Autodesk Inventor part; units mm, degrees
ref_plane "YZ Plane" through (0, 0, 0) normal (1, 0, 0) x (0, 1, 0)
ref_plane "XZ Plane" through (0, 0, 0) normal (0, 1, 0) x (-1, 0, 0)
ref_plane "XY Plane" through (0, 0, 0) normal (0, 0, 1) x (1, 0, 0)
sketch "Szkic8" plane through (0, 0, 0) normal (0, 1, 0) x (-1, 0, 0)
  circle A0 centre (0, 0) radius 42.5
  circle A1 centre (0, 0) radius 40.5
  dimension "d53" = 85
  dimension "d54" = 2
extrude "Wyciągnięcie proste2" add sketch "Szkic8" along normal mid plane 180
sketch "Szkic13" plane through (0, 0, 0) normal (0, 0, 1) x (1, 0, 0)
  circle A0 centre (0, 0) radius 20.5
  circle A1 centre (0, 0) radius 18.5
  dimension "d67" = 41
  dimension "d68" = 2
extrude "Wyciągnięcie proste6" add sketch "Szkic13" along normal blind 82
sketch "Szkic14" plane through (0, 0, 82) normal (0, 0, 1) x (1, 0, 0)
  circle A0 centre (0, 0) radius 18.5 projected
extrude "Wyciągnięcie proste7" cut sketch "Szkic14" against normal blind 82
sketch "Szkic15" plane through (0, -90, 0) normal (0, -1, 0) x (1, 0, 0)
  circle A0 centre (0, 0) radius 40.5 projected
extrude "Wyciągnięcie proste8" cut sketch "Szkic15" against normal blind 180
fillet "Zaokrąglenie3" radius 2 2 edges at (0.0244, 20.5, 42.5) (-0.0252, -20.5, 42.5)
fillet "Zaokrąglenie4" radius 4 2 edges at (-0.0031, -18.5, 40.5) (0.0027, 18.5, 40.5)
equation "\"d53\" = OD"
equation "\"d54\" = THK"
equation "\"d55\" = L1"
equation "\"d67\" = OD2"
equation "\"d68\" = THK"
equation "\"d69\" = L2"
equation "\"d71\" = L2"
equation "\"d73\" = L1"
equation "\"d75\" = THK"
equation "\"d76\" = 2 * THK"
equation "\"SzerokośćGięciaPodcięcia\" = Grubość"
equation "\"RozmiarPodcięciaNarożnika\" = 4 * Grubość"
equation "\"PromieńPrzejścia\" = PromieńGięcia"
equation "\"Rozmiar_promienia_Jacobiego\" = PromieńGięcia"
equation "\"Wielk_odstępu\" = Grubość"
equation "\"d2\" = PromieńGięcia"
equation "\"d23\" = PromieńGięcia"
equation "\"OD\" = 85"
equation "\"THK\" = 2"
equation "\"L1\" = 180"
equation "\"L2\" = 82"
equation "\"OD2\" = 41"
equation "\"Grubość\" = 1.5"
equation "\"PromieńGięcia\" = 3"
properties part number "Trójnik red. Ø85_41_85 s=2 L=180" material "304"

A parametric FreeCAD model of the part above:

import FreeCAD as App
import Part
import Sketcher

V = App.Vector
Q = App.Units.Quantity


def edges_at(feature, points):
    """Names of the edges that pass closest to the given points."""
    edges = feature.Shape.Edges
    near = lambda p: min(range(len(edges)), key=lambda i: edges[i].distToShape(Part.Vertex(*p))[0])
    return sorted({f"Edge{near(p) + 1}" for p in points})

doc = App.newDocument("Part")
body = doc.addObject("PartDesign::Body", "Body")

sketch1 = doc.addObject("Sketcher::SketchObject", "Sketch")
body.addObject(sketch1)
sketch1.AttachmentSupport = (doc.XZ_Plane, [""])
sketch1.MapMode = "FlatFace"
sketch1.addGeometry([
    Part.Circle(V(0, 0, 0), V(0, 0, 1), 42),
    Part.Circle(V(0, 0, 0), V(0, 0, 1), 40),
], False)
sketch1.addConstraint([
    Sketcher.Constraint("Coincident", 0, 3, -1, 1),
    Sketcher.Constraint("Coincident", 1, 3, -1, 1),
    Sketcher.Constraint("Diameter", 0, Q("85 mm")),
    Sketcher.Constraint("Diameter", 1, Q("81 mm")),
])
pad1 = doc.addObject("PartDesign::Pad", "Pad")
body.addObject(pad1)
pad1.Profile = sketch1
pad1.Length = 180
pad1.Midplane = True

sketch2 = doc.addObject("Sketcher::SketchObject", "Sketch001")
body.addObject(sketch2)
sketch2.AttachmentSupport = (doc.XY_Plane, [""])
sketch2.MapMode = "FlatFace"
sketch2.addGeometry([
    Part.Circle(V(0, 0, 0), V(0, 0, 1), 20),
    Part.Circle(V(0, 0, 0), V(0, 0, 1), 18),
], False)
sketch2.addConstraint([
    Sketcher.Constraint("Coincident", 0, 3, -1, 1),
    Sketcher.Constraint("Coincident", 1, 3, -1, 1),
    Sketcher.Constraint("Diameter", 0, Q("41 mm")),
    Sketcher.Constraint("Diameter", 1, Q("37 mm")),
])
pad2 = doc.addObject("PartDesign::Pad", "Pad001")
body.addObject(pad2)
pad2.Profile = sketch2
pad2.Length = 82

sketch3 = doc.addObject("Sketcher::SketchObject", "Sketch002")
body.addObject(sketch3)
sketch3.AttachmentSupport = (doc.XY_Plane, [""])
sketch3.MapMode = "FlatFace"
sketch3.AttachmentOffset = App.Placement(V(0, 0, 82), App.Rotation())
sketch3.addGeometry(Part.Circle(V(0, 0, 0), V(0, 0, 1), 18), False)
sketch3.addConstraint([
    Sketcher.Constraint("Coincident", 0, 3, -1, 1),
    Sketcher.Constraint("Diameter", 0, Q("37 mm")),
])
pocket1 = doc.addObject("PartDesign::Pocket", "Pocket")
body.addObject(pocket1)
pocket1.Profile = sketch3
pocket1.Length = 82

sketch4 = doc.addObject("Sketcher::SketchObject", "Sketch003")
body.addObject(sketch4)
sketch4.AttachmentSupport = (doc.XZ_Plane, [""])
sketch4.MapMode = "FlatFace"
sketch4.AttachmentOffset = App.Placement(V(0, 0, 90), App.Rotation())
sketch4.addGeometry(Part.Circle(V(0, 0, 0), V(0, 0, 1), 40), False)
sketch4.addConstraint([
    Sketcher.Constraint("Coincident", 0, 3, -1, 1),
    Sketcher.Constraint("Diameter", 0, Q("81 mm")),
])
pocket2 = doc.addObject("PartDesign::Pocket", "Pocket001")
body.addObject(pocket2)
pocket2.Profile = sketch4
pocket2.Length = 180
doc.recompute()

fillet = doc.addObject("PartDesign::Fillet", "Fillet")
body.addObject(fillet)
fillet.Base = (pocket2, edges_at(pocket2, [(0.024, 20.5, 42.5), (-0.025, -20.5, 42.5)]))
fillet.Radius = 2
doc.recompute()

fillet2 = doc.addObject("PartDesign::Fillet", "Fillet001")
body.addObject(fillet2)
fillet2.Base = (fillet, edges_at(fillet, [(-0.003, -18.5, 40.5), (0.003, 18.5, 40.5)]))
fillet2.Radius = 4

doc.recompute()
